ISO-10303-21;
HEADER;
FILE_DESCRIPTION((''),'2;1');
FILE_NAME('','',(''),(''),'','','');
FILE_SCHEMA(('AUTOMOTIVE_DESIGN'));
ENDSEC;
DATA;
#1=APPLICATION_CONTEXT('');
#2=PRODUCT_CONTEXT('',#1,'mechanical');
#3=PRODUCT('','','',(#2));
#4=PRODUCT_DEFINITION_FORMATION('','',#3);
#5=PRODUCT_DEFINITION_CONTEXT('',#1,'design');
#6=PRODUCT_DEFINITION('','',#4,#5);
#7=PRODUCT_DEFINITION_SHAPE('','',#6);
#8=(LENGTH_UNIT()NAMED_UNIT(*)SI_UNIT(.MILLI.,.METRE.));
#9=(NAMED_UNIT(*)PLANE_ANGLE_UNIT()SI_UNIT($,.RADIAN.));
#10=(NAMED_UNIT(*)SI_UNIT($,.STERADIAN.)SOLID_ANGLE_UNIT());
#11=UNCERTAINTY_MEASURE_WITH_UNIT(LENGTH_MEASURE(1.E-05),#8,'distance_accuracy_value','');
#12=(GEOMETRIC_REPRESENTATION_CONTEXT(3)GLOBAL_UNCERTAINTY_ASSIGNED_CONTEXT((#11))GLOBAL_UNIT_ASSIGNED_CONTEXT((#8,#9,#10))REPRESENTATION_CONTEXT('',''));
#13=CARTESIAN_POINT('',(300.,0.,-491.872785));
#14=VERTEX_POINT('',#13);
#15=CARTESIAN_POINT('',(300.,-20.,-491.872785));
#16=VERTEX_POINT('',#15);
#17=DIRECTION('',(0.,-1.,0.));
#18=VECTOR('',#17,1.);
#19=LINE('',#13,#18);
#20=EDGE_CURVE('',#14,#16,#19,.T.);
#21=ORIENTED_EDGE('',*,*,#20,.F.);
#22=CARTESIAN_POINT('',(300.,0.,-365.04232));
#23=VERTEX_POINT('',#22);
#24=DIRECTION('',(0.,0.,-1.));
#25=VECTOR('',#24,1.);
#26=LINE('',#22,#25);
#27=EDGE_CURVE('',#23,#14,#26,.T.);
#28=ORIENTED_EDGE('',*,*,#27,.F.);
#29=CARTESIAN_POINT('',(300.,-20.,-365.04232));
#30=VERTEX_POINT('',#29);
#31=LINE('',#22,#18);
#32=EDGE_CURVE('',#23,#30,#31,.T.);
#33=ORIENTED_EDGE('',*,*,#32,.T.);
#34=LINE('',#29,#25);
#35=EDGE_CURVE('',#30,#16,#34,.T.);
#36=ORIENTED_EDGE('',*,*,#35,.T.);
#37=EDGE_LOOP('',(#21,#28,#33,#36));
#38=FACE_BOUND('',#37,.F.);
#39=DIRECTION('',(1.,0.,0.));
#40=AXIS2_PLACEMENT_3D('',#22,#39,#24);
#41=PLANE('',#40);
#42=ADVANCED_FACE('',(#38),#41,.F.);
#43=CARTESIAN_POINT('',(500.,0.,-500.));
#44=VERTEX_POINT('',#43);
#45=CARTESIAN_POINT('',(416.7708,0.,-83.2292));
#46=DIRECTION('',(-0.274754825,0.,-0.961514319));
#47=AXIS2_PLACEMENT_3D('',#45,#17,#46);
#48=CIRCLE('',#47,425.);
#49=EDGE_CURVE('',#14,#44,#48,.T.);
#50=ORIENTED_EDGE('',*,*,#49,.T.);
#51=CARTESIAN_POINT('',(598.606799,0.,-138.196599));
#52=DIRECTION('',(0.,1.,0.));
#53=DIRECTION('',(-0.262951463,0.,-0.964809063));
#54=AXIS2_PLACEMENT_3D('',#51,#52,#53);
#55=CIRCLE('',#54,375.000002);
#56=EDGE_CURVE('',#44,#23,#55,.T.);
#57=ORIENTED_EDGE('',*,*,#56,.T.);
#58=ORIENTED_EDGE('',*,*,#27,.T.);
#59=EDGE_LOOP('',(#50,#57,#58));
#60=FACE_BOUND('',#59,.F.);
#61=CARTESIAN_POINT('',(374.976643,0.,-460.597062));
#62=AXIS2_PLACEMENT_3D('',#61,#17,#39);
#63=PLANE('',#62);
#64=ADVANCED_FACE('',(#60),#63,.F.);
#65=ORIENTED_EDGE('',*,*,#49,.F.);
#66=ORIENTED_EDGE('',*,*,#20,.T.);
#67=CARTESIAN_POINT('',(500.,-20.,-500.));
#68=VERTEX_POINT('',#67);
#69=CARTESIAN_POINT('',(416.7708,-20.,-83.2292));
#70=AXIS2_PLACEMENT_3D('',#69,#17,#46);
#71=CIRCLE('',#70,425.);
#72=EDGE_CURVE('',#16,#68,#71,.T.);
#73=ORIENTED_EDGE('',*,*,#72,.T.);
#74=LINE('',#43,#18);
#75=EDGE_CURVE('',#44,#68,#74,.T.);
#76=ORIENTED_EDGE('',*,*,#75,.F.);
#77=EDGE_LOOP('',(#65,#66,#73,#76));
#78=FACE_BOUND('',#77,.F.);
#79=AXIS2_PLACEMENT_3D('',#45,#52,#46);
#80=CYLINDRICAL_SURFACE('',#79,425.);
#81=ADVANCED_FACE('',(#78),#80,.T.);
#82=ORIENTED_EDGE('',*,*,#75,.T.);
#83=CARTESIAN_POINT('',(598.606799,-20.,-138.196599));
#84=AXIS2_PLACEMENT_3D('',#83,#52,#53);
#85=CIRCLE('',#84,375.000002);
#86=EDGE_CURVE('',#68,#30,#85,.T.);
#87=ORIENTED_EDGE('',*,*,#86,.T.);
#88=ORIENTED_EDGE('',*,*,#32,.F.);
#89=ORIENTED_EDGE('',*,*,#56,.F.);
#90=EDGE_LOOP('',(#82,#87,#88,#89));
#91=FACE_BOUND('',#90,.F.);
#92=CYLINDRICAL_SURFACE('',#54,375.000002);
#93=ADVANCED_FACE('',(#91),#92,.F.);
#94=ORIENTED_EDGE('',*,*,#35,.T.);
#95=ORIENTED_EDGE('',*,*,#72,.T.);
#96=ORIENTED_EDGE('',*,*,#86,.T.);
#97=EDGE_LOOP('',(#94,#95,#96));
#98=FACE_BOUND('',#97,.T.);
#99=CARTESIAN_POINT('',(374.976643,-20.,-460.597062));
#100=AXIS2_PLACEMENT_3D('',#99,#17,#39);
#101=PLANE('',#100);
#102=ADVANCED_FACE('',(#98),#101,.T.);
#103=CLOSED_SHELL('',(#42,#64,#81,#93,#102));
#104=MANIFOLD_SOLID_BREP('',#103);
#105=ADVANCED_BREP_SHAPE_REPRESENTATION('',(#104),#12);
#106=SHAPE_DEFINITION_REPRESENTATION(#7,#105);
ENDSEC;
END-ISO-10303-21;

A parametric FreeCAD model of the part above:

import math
import FreeCAD as App
import Part
import Sketcher

V = App.Vector

doc = App.newDocument("Part")
body = doc.addObject("PartDesign::Body", "Body")

# Sketch on XZ plane
sketch1 = body.newObject("Sketcher::SketchObject", "Sketch")
sketch1.AttachmentSupport = (doc.getObject("XZ_Plane"), [""])
sketch1.MapMode = "FlatFace"
sketch1.addGeometry(Part.LineSegment(V(300, -365, 0), V(300, -492, 0)), False)
sketch1.addGeometry(Part.ArcOfCircle(Part.Circle(V(417, -83, 0), V(0, 0, 1), 425), math.radians(-106), math.radians(-79)), False)
sketch1.addGeometry(Part.ArcOfCircle(Part.Circle(V(599, -138, 0), V(0, 0, 1), 375), math.radians(-143), math.radians(-105)), False)
sketch1.addConstraint(Sketcher.Constraint("Coincident", 0, 2, 1, 1))
sketch1.addConstraint(Sketcher.Constraint("Coincident", 1, 2, 2, 2))
sketch1.addConstraint(Sketcher.Constraint("Coincident", 2, 1, 0, 1))
sketch1.addConstraint(Sketcher.Constraint("Vertical", 0))
sketch1.addConstraint(Sketcher.Constraint("Radius", 1, 425.0))
sketch1.addConstraint(Sketcher.Constraint("DistanceX", -1, 1, 0, 2, 300.0))
sketch1.addConstraint(Sketcher.Constraint("DistanceX", -1, 1, 1, 2, 500.0))
sketch1.addConstraint(Sketcher.Constraint("DistanceY", 1, 2, -1, 1, 500.0))
sketch1.addConstraint(Sketcher.Constraint("Radius", 2, 375.000002))
sketch1.addConstraint(Sketcher.Constraint("DistanceX", 1, 3, 2, 3, 181.835999))
sketch1.addConstraint(Sketcher.Constraint("DistanceX", -1, 1, 1, 3, 416.7708))
pad1 = body.newObject("PartDesign::Pad", "Pad")
pad1.Profile = sketch1
pad1.Length = 20

doc.recompute()
